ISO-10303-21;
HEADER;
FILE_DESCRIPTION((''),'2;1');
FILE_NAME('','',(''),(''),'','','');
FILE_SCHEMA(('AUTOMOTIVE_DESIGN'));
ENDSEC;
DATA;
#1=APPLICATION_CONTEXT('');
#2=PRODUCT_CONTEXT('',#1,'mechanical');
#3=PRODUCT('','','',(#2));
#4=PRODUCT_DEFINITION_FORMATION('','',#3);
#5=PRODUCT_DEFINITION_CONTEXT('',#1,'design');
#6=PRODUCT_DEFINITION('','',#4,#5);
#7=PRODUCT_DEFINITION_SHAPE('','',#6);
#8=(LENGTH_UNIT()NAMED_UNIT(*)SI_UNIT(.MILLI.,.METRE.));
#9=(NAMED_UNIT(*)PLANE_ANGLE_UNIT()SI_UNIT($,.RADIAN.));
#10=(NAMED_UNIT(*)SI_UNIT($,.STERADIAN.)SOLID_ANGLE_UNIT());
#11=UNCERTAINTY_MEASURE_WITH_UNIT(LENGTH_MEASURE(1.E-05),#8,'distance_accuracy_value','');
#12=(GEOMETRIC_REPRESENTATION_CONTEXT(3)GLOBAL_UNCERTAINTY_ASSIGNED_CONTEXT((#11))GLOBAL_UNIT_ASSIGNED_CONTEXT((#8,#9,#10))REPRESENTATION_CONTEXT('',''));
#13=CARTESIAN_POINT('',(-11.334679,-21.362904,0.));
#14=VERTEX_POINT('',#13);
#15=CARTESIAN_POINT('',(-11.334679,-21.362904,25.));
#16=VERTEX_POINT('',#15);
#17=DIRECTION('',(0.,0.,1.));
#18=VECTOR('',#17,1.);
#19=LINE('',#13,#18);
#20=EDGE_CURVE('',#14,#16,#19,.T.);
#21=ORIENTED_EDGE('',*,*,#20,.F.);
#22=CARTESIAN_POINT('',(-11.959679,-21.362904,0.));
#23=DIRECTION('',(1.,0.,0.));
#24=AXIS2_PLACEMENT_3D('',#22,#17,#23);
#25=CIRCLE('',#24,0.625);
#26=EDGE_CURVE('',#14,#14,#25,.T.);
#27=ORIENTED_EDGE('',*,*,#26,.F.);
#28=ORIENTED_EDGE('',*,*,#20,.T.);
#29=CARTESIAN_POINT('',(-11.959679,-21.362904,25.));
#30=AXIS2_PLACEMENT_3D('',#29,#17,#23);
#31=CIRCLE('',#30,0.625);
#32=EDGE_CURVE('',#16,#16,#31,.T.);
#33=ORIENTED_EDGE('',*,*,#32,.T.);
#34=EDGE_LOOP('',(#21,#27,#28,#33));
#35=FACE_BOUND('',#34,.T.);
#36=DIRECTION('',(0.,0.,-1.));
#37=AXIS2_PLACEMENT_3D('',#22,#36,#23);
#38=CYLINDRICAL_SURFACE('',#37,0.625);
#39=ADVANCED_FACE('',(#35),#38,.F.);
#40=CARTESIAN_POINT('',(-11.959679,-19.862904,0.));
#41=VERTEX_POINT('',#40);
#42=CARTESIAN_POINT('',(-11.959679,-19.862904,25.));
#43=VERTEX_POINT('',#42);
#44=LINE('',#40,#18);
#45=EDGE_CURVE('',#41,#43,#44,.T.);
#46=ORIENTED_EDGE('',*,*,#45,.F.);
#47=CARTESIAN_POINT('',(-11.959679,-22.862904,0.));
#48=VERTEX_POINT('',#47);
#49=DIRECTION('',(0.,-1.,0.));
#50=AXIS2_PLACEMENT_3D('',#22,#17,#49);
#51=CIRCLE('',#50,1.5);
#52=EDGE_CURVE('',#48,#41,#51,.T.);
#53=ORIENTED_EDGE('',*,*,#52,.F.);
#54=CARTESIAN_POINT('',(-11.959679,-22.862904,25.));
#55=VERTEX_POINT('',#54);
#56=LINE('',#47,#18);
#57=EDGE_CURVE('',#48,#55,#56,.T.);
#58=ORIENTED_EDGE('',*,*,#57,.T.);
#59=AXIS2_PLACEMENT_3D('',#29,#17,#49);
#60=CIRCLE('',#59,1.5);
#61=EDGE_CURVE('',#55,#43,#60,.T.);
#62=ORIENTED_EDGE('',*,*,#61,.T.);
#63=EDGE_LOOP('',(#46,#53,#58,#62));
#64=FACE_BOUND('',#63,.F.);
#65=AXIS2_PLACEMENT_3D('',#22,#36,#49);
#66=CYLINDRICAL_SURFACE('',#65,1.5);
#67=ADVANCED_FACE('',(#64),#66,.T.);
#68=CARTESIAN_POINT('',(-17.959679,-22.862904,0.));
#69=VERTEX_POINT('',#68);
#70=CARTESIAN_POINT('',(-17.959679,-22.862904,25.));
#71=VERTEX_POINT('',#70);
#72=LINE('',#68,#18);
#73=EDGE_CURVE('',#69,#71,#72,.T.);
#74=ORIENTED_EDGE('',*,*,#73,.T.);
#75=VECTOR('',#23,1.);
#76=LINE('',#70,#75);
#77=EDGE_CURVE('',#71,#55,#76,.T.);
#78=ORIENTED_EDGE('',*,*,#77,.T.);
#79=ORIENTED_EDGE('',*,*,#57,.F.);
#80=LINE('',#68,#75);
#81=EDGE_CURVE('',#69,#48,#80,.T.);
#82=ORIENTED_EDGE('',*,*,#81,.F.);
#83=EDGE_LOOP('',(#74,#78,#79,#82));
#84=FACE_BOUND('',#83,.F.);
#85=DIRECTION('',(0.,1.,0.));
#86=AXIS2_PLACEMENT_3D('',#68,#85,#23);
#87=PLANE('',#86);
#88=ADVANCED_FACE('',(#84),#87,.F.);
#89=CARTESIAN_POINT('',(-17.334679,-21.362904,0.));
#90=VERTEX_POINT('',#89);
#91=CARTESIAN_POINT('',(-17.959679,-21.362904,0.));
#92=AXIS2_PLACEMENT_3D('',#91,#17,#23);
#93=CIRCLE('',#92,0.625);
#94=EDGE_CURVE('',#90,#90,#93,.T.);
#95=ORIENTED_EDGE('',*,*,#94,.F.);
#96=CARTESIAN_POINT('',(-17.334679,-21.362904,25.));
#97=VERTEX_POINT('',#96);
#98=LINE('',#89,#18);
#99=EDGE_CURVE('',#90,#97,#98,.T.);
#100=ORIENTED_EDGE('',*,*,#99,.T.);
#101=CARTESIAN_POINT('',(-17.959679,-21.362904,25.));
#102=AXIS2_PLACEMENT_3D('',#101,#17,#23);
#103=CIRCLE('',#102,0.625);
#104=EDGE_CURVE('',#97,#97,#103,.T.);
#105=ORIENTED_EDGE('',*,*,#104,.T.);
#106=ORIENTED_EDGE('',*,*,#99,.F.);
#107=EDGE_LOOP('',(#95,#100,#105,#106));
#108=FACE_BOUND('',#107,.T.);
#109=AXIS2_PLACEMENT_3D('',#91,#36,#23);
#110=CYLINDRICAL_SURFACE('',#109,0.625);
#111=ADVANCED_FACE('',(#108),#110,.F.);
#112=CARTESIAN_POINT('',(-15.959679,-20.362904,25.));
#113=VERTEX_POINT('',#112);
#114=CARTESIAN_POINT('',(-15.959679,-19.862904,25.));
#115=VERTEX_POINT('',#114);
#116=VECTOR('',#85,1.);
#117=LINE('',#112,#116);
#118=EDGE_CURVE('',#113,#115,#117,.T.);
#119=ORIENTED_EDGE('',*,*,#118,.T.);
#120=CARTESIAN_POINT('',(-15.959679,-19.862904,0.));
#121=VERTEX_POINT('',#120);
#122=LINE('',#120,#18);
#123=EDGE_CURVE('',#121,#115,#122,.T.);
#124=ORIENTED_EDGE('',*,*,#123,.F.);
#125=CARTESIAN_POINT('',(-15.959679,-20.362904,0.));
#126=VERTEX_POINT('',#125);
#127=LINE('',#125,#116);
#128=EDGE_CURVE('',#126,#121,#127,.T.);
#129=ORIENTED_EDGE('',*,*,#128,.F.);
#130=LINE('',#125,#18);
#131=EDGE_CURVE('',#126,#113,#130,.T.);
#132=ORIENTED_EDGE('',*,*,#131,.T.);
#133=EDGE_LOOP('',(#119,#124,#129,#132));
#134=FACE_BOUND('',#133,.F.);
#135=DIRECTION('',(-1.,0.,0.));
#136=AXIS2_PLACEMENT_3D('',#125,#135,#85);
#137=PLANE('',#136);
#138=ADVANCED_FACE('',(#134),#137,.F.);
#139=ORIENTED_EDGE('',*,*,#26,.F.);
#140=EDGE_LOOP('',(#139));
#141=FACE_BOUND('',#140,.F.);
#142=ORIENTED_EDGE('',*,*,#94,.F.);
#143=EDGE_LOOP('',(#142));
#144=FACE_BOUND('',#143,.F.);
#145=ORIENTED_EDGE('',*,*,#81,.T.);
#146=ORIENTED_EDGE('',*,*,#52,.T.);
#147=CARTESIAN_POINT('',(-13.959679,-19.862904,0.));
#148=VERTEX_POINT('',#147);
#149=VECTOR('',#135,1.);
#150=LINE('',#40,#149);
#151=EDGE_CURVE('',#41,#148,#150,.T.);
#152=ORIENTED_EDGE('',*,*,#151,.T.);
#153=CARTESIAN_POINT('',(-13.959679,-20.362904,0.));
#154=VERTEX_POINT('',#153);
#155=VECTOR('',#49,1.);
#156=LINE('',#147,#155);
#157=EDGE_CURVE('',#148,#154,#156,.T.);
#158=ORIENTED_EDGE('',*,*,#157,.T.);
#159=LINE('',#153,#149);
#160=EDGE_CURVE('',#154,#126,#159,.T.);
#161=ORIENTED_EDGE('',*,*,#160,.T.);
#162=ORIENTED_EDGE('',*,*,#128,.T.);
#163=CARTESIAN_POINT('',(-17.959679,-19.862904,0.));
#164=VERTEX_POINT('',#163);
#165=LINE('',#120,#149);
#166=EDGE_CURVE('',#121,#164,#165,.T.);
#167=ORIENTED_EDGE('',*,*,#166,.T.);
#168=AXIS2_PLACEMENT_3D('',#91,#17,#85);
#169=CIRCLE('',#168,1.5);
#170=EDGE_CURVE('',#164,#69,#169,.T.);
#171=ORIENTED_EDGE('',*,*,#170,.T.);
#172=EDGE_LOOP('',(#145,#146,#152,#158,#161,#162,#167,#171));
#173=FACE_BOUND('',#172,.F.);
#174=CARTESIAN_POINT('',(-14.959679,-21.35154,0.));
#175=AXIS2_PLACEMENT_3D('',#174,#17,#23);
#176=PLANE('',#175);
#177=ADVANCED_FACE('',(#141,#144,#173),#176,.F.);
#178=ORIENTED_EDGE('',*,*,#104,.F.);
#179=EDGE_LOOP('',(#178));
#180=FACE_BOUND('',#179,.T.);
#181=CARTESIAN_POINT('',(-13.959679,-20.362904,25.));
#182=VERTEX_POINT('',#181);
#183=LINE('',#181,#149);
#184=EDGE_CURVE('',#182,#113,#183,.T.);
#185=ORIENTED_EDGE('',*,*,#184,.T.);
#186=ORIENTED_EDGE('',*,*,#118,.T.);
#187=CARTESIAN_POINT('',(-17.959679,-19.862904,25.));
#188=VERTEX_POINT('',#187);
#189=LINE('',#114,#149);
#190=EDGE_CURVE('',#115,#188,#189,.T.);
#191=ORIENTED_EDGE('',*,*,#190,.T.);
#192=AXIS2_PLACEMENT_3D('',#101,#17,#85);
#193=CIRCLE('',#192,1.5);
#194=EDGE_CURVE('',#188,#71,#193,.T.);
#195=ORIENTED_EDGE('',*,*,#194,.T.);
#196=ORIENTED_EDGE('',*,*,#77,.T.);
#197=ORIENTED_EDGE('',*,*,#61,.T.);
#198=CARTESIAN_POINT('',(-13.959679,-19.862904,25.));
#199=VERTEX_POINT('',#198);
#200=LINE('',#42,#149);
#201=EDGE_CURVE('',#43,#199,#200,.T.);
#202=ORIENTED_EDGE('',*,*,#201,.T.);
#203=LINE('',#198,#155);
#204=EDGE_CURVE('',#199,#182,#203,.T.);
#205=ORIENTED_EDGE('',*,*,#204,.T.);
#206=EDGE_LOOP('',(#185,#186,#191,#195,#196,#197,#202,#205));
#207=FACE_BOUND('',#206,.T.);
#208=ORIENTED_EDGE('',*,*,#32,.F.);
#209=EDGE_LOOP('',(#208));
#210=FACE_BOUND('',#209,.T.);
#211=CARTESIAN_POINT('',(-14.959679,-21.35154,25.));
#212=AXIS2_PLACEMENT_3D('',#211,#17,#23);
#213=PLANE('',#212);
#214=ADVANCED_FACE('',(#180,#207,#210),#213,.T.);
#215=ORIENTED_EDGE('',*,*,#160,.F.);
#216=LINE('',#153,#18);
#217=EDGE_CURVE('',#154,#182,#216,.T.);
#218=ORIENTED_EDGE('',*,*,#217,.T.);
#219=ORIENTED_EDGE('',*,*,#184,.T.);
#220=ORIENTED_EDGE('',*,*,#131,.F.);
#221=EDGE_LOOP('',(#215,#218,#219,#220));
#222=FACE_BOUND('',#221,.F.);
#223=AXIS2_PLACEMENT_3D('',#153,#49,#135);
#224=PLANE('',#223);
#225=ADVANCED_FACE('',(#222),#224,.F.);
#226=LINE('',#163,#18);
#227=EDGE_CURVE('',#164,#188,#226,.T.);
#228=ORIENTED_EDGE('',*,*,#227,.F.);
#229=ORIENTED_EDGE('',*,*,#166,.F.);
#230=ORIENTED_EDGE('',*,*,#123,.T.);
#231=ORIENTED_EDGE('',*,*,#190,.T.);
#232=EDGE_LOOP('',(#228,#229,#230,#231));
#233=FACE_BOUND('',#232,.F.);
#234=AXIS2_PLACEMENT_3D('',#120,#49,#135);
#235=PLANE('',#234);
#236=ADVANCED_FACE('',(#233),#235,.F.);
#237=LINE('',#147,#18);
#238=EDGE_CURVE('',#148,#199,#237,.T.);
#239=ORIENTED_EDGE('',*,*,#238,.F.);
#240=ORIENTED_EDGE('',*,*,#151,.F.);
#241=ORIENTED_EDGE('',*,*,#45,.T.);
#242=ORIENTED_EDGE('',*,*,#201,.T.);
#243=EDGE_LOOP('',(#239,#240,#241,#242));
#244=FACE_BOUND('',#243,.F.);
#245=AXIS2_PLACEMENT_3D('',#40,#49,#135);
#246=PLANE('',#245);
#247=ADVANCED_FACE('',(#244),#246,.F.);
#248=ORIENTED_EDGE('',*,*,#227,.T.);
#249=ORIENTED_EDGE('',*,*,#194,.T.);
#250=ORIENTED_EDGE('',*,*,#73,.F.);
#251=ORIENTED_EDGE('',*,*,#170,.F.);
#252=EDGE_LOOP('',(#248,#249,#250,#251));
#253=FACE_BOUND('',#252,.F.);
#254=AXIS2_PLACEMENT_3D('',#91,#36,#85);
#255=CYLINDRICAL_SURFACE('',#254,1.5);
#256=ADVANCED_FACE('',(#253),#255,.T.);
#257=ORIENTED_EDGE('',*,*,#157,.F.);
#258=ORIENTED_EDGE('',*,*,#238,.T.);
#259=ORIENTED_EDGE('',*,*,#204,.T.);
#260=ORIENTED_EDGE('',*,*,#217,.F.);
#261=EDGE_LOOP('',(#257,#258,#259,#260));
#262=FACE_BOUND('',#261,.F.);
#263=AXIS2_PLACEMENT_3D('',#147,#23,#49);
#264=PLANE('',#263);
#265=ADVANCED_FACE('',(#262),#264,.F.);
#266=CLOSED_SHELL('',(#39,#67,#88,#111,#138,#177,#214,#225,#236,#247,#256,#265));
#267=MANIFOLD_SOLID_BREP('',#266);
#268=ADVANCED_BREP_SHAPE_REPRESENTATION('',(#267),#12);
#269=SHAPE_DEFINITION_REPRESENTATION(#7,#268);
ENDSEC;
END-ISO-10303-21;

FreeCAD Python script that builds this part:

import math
import FreeCAD as App
import Part
import Sketcher
from FreeCAD import Vector

doc = App.newDocument("Part")
body = doc.addObject("PartDesign::Body", "Body")

sketch1 = body.newObject("Sketcher::SketchObject", "Sketch")
sketch1.AttachmentSupport = (doc.getObject("XY_Plane"), [""])
sketch1.MapMode = "FlatFace"
sketch1.addGeometry(Part.ArcOfCircle(Part.Circle(Vector(-18, -21.4, 0), Vector(0, 0, 1), 1.5), math.radians(90), math.radians(270)), False)
sketch1.addGeometry(Part.LineSegment(Vector(-18, -22.9, 0), Vector(-12, -22.9, 0)), False)
sketch1.addGeometry(Part.ArcOfCircle(Part.Circle(Vector(-12, -21.4, 0), Vector(0, 0, 1), 1.5), math.radians(-90), math.radians(90)), False)
sketch1.addGeometry(Part.LineSegment(Vector(-12, -19.9, 0), Vector(-14, -19.9, 0)), False)
sketch1.addGeometry(Part.LineSegment(Vector(-14, -19.9, 0), Vector(-14, -20.4, 0)), False)
sketch1.addGeometry(Part.LineSegment(Vector(-14, -20.4, 0), Vector(-16, -20.4, 0)), False)
sketch1.addGeometry(Part.LineSegment(Vector(-16, -20.4, 0), Vector(-16, -19.9, 0)), False)
sketch1.addGeometry(Part.LineSegment(Vector(-16, -19.9, 0), Vector(-18, -19.9, 0)), False)
sketch1.addGeometry(Part.Circle(Vector(-18, -21.4, 0), Vector(0, 0, 1), 0.6), False)
sketch1.addGeometry(Part.Circle(Vector(-12, -21.4, 0), Vector(0, 0, 1), 0.6), False)
sketch1.addConstraint(Sketcher.Constraint("Tangent", 0, 2, 1, 1))
sketch1.addConstraint(Sketcher.Constraint("Tangent", 1, 2, 2, 1))
sketch1.addConstraint(Sketcher.Constraint("Tangent", 2, 2, 3, 1))
sketch1.addConstraint(Sketcher.Constraint("Coincident", 3, 2, 4, 1))
sketch1.addConstraint(Sketcher.Constraint("Coincident", 4, 2, 5, 1))
sketch1.addConstraint(Sketcher.Constraint("Coincident", 5, 2, 6, 1))
sketch1.addConstraint(Sketcher.Constraint("Coincident", 6, 2, 7, 1))
sketch1.addConstraint(Sketcher.Constraint("Tangent", 7, 2, 0, 1))
sketch1.addConstraint(Sketcher.Constraint("Horizontal", 1))
sketch1.addConstraint(Sketcher.Constraint("Horizontal", 3))
sketch1.addConstraint(Sketcher.Constraint("Vertical", 4))
sketch1.addConstraint(Sketcher.Constraint("Horizontal", 5))
sketch1.addConstraint(Sketcher.Constraint("Vertical", 6))
sketch1.addConstraint(Sketcher.Constraint("Horizontal", 7))
sketch1.addConstraint(Sketcher.Constraint("Coincident", 8, 3, 0, 3))
sketch1.addConstraint(Sketcher.Constraint("Coincident", 9, 3, 2, 3))
sketch1.addConstraint(Sketcher.Constraint("Equal", 0, 2))
sketch1.addConstraint(Sketcher.Constraint("Equal", 8, 9))
sketch1.addConstraint(Sketcher.Constraint("Equal", 3, 5))
sketch1.addConstraint(Sketcher.Constraint("Equal", 5, 7))
sketch1.addConstraint(Sketcher.Constraint("Radius", 0, 1.5))
sketch1.addConstraint(Sketcher.Constraint("Diameter", 8, 1.25))
sketch1.addConstraint(Sketcher.Constraint("DistanceX", 1, 1, 1, 2, 6.0))
sketch1.addConstraint(Sketcher.Constraint("DistanceY", 4, 2, 4, 1, 0.5))
sketch1.addConstraint(Sketcher.Constraint("DistanceX", 0, 3, -1, 1, 17.959679))
sketch1.addConstraint(Sketcher.Constraint("DistanceY", 0, 3, -1, 1, 21.362904))
pad1 = body.newObject("PartDesign::Pad", "Pad")
pad1.Profile = sketch1
pad1.Length = 25

doc.recompute()
